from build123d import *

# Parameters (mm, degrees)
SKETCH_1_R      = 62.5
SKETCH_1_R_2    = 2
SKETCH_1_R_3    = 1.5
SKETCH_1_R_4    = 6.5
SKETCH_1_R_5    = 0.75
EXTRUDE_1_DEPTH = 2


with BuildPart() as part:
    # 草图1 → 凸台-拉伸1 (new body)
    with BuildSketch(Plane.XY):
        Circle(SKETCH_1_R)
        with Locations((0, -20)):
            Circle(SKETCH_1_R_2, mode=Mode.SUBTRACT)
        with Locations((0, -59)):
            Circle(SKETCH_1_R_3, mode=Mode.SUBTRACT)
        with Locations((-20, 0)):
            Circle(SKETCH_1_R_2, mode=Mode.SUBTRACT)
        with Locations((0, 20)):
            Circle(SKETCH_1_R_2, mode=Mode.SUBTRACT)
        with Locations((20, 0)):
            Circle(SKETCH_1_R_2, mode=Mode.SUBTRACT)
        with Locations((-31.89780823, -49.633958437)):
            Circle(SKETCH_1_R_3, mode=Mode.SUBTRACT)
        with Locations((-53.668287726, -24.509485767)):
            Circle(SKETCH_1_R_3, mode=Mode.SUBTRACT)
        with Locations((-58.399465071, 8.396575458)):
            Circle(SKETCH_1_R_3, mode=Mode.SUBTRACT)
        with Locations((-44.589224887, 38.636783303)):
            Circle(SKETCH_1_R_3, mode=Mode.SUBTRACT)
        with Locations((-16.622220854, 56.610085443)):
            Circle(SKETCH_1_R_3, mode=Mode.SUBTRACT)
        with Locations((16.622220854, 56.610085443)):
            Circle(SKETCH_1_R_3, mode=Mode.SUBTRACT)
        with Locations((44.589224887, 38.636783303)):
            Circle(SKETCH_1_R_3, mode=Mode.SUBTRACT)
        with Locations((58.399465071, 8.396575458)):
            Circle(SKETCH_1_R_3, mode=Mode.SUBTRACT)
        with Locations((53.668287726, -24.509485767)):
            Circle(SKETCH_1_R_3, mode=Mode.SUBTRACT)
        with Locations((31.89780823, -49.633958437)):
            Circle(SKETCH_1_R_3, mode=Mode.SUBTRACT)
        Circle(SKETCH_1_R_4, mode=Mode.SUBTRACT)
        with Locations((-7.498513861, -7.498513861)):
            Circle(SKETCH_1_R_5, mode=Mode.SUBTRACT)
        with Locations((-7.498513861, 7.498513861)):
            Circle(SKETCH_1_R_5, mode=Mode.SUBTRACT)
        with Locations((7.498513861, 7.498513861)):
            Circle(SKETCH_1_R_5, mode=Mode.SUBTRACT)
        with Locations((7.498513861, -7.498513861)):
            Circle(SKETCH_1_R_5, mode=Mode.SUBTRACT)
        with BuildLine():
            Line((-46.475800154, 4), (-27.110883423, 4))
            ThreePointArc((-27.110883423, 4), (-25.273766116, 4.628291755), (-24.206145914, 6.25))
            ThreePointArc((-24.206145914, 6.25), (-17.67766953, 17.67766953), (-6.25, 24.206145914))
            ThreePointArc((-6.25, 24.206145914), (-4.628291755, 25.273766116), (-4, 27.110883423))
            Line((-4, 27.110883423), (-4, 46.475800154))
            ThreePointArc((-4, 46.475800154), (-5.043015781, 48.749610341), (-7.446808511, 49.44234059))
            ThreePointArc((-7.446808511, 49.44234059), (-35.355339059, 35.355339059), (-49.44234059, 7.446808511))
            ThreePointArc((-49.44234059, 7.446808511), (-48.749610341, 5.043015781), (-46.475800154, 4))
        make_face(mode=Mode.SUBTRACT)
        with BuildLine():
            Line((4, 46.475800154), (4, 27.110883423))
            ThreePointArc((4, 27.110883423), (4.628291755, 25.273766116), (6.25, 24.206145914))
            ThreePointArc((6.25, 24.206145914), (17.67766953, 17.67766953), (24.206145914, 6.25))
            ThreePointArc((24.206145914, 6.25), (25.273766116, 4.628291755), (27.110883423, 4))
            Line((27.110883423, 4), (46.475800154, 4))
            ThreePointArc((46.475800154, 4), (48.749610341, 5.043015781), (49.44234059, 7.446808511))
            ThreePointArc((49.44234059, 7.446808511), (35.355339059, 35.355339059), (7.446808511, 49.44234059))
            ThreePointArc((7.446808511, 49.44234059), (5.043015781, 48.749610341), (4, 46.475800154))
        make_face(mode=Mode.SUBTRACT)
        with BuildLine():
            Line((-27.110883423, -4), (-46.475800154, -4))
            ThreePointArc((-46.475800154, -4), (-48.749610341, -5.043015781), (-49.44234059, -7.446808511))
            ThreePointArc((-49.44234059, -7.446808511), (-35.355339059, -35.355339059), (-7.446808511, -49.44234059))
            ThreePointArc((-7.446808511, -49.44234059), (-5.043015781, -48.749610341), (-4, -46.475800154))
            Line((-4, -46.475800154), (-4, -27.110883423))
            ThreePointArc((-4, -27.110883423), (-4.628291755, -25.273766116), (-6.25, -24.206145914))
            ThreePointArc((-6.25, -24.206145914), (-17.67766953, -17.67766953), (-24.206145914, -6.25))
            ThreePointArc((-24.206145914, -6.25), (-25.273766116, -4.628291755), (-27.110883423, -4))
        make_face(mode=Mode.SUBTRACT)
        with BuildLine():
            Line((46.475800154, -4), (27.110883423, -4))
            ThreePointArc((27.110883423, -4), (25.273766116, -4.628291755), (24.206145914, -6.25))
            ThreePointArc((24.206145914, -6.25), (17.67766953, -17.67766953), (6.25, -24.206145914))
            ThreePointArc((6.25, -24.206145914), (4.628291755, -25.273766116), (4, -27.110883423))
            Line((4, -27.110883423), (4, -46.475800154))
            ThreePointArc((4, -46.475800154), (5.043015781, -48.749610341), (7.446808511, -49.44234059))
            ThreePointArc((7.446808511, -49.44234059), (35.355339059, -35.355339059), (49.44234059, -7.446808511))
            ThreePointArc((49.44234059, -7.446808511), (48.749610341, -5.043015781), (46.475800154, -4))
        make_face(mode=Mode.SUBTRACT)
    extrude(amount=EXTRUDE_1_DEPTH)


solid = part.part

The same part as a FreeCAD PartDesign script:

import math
import FreeCAD as App
import Part
import Sketcher
from FreeCAD import Vector
Q = App.Units.Quantity

doc = App.newDocument("Part")
body = doc.addObject("PartDesign::Body", "Body")

# Sketch on XY plane
sketch1 = body.newObject("Sketcher::SketchObject", "Sketch")
sketch1.AttachmentSupport = (doc.getObject("XY_Plane"), [""])
sketch1.MapMode = "FlatFace"
sketch1.addGeometry([
    Part.Circle(Vector(0, 0, 0), Vector(0, 0, 1), 62.5),  # 0
    Part.Circle(Vector(-31.9, -49.6, 0), Vector(0, 0, 1), 1.5),  # 1
    Part.Circle(Vector(-53.7, -24.5, 0), Vector(0, 0, 1), 1.5),  # 2
    Part.LineSegment(Vector(-46.5, -4, 0), Vector(-27.1, -4, 0)),  # 3
    Part.ArcOfCircle(Part.Circle(Vector(-27.1, -7, 0), Vector(0, 0, 1), 3), math.radians(14), math.radians(90)),  # 4
    Part.ArcOfCircle(Part.Circle(Vector(0, 0, 0), Vector(0, 0, 1), 25), math.radians(-166), math.radians(-104)),  # 5
    Part.ArcOfCircle(Part.Circle(Vector(-7, -27.1, 0), Vector(0, 0, 1), 3), math.radians(0), math.radians(76)),  # 6
    Part.LineSegment(Vector(-4, -27.1, 0), Vector(-4, -46.5, 0)),  # 7
    Part.ArcOfCircle(Part.Circle(Vector(-7, -46.5, 0), Vector(0, 0, 1), 3), math.radians(-99), math.radians(0)),  # 8
    Part.ArcOfCircle(Part.Circle(Vector(0, 0, 0), Vector(0, 0, 1), 50), math.radians(-171), math.radians(-99)),  # 9
    Part.ArcOfCircle(Part.Circle(Vector(-46.5, -7, 0), Vector(0, 0, 1), 3), math.radians(90), math.radians(189)),  # 10
    Part.Circle(Vector(-7.5, -7.5, 0), Vector(0, 0, 1), 0.8),  # 11
    Part.Circle(Vector(0, -59, 0), Vector(0, 0, 1), 1.5),  # 12
    Part.Circle(Vector(31.9, -49.6, 0), Vector(0, 0, 1), 1.5),  # 13
    Part.Circle(Vector(0, -20, 0), Vector(0, 0, 1), 2),  # 14
    Part.LineSegment(Vector(27.1, -4, 0), Vector(46.5, -4, 0)),  # 15
    Part.ArcOfCircle(Part.Circle(Vector(46.5, -7, 0), Vector(0, 0, 1), 3), math.radians(-9), math.radians(90)),  # 16
    Part.ArcOfCircle(Part.Circle(Vector(0, 0, 0), Vector(0, 0, 1), 50), math.radians(-81), math.radians(-9)),  # 17
    Part.ArcOfCircle(Part.Circle(Vector(7, -46.5, 0), Vector(0, 0, 1), 3), math.radians(180), math.radians(279)),  # 18
    Part.LineSegment(Vector(4, -46.5, 0), Vector(4, -27.1, 0)),  # 19
    Part.ArcOfCircle(Part.Circle(Vector(7, -27.1, 0), Vector(0, 0, 1), 3), math.radians(104), math.radians(180)),  # 20
    Part.ArcOfCircle(Part.Circle(Vector(0, 0, 0), Vector(0, 0, 1), 25), math.radians(-76), math.radians(-14)),  # 21
    Part.ArcOfCircle(Part.Circle(Vector(27.1, -7, 0), Vector(0, 0, 1), 3), math.radians(90), math.radians(166)),  # 22
    Part.Circle(Vector(7.5, -7.5, 0), Vector(0, 0, 1), 0.8),  # 23
    Part.Circle(Vector(53.7, -24.5, 0), Vector(0, 0, 1), 1.5),  # 24
    Part.Circle(Vector(-58.4, 8.4, 0), Vector(0, 0, 1), 1.5),  # 25
    Part.Circle(Vector(-20, 0, 0), Vector(0, 0, 1), 2),  # 26
    Part.Circle(Vector(-7.5, 7.5, 0), Vector(0, 0, 1), 0.8),  # 27
    Part.LineSegment(Vector(-27.1, 4, 0), Vector(-46.5, 4, 0)),  # 28
    Part.ArcOfCircle(Part.Circle(Vector(-46.5, 7, 0), Vector(0, 0, 1), 3), math.radians(171), math.radians(270)),  # 29
    Part.ArcOfCircle(Part.Circle(Vector(0, 0, 0), Vector(0, 0, 1), 50), math.radians(99), math.radians(171)),  # 30
    Part.ArcOfCircle(Part.Circle(Vector(-7, 46.5, 0), Vector(0, 0, 1), 3), math.radians(0), math.radians(99)),  # 31
    Part.LineSegment(Vector(-4, 46.5, 0), Vector(-4, 27.1, 0)),  # 32
    Part.ArcOfCircle(Part.Circle(Vector(-7, 27.1, 0), Vector(0, 0, 1), 3), math.radians(-76), math.radians(0)),  # 33
    Part.ArcOfCircle(Part.Circle(Vector(0, 0, 0), Vector(0, 0, 1), 25), math.radians(104), math.radians(166)),  # 34
    Part.ArcOfCircle(Part.Circle(Vector(-27.1, 7, 0), Vector(0, 0, 1), 3), math.radians(-90), math.radians(-14)),  # 35
    Part.Circle(Vector(-44.6, 38.6, 0), Vector(0, 0, 1), 1.5),  # 36
    Part.Circle(Vector(-16.6, 56.6, 0), Vector(0, 0, 1), 1.5),  # 37
    Part.Circle(Vector(0, 0, 0), Vector(0, 0, 1), 6.5),  # 38
    Part.Circle(Vector(7.5, 7.5, 0), Vector(0, 0, 1), 0.8),  # 39
    Part.Circle(Vector(20, 0, 0), Vector(0, 0, 1), 2),  # 40
    Part.Circle(Vector(0, 20, 0), Vector(0, 0, 1), 2),  # 41
    Part.LineSegment(Vector(4, 27.1, 0), Vector(4, 46.5, 0)),  # 42
    Part.ArcOfCircle(Part.Circle(Vector(7, 46.5, 0), Vector(0, 0, 1), 3), math.radians(81), math.radians(180)),  # 43
    Part.ArcOfCircle(Part.Circle(Vector(0, 0, 0), Vector(0, 0, 1), 50), math.radians(9), math.radians(81)),  # 44
    Part.ArcOfCircle(Part.Circle(Vector(46.5, 7, 0), Vector(0, 0, 1), 3), math.radians(-90), math.radians(9)),  # 45
    Part.LineSegment(Vector(46.5, 4, 0), Vector(27.1, 4, 0)),  # 46
    Part.ArcOfCircle(Part.Circle(Vector(27.1, 7, 0), Vector(0, 0, 1), 3), math.radians(-166), math.radians(-90)),  # 47
    Part.ArcOfCircle(Part.Circle(Vector(0, 0, 0), Vector(0, 0, 1), 25), math.radians(14), math.radians(76)),  # 48
    Part.ArcOfCircle(Part.Circle(Vector(7, 27.1, 0), Vector(0, 0, 1), 3), math.radians(180), math.radians(256)),  # 49
    Part.Circle(Vector(58.4, 8.4, 0), Vector(0, 0, 1), 1.5),  # 50
    Part.Circle(Vector(16.6, 56.6, 0), Vector(0, 0, 1), 1.5),  # 51
    Part.Circle(Vector(44.6, 38.6, 0), Vector(0, 0, 1), 1.5),  # 52
], False)
sketch1.addConstraint([
    Sketcher.Constraint("Tangent", 3, 2, 4, 2),
    Sketcher.Constraint("Tangent", 4, 1, 5, 1),
    Sketcher.Constraint("Tangent", 5, 2, 6, 2),
    Sketcher.Constraint("Tangent", 6, 1, 7, 1),
    Sketcher.Constraint("Tangent", 7, 2, 8, 2),
    Sketcher.Constraint("Tangent", 8, 1, 9, 2),
    Sketcher.Constraint("Tangent", 9, 1, 10, 2),
    Sketcher.Constraint("Tangent", 10, 1, 3, 1),
    Sketcher.Constraint("Tangent", 15, 2, 16, 2),
    Sketcher.Constraint("Tangent", 16, 1, 17, 2),
    Sketcher.Constraint("Tangent", 17, 1, 18, 2),
    Sketcher.Constraint("Tangent", 18, 1, 19, 1),
    Sketcher.Constraint("Tangent", 19, 2, 20, 2),
    Sketcher.Constraint("Tangent", 20, 1, 21, 1),
    Sketcher.Constraint("Tangent", 21, 2, 22, 2),
    Sketcher.Constraint("Tangent", 22, 1, 15, 1),
    Sketcher.Constraint("Tangent", 28, 2, 29, 2),
    Sketcher.Constraint("Tangent", 29, 1, 30, 2),
    Sketcher.Constraint("Tangent", 30, 1, 31, 2),
    Sketcher.Constraint("Tangent", 31, 1, 32, 1),
    Sketcher.Constraint("Tangent", 32, 2, 33, 2),
    Sketcher.Constraint("Tangent", 33, 1, 34, 1),
    Sketcher.Constraint("Tangent", 34, 2, 35, 2),
    Sketcher.Constraint("Tangent", 35, 1, 28, 1),
    Sketcher.Constraint("Tangent", 42, 2, 43, 2),
    Sketcher.Constraint("Tangent", 43, 1, 44, 2),
    Sketcher.Constraint("Tangent", 44, 1, 45, 2),
    Sketcher.Constraint("Tangent", 45, 1, 46, 1),
    Sketcher.Constraint("Tangent", 46, 2, 47, 2),
    Sketcher.Constraint("Tangent", 47, 1, 48, 1),
    Sketcher.Constraint("Tangent", 48, 2, 49, 2),
    Sketcher.Constraint("Tangent", 49, 1, 42, 1),
    Sketcher.Constraint("Horizontal", 3),
    Sketcher.Constraint("Vertical", 7),
    Sketcher.Constraint("Horizontal", 15),
    Sketcher.Constraint("Vertical", 19),
    Sketcher.Constraint("Horizontal", 28),
    Sketcher.Constraint("Vertical", 32),
    Sketcher.Constraint("Vertical", 42),
    Sketcher.Constraint("Horizontal", 46),
    Sketcher.Constraint("Coincident", 0, 3, -1, 1),
    Sketcher.Constraint("Coincident", 5, 3, -1, 1),
    Sketcher.Constraint("Coincident", 9, 3, -1, 1),
    Sketcher.Constraint("Coincident", 17, 3, -1, 1),
    Sketcher.Constraint("Coincident", 21, 3, -1, 1),
    Sketcher.Constraint("Coincident", 30, 3, -1, 1),
    Sketcher.Constraint("Coincident", 34, 3, -1, 1),
    Sketcher.Constraint("Coincident", 38, 3, -1, 1),
    Sketcher.Constraint("Coincident", 44, 3, -1, 1),
    Sketcher.Constraint("Coincident", 48, 3, -1, 1),
    Sketcher.Constraint("Equal", 1, 2),
    Sketcher.Constraint("Equal", 4, 6),
    Sketcher.Constraint("Equal", 6, 8),
    Sketcher.Constraint("Equal", 8, 10),
    Sketcher.Constraint("Equal", 2, 12),
    Sketcher.Constraint("Equal", 12, 13),
    Sketcher.Constraint("Equal", 10, 16),
    Sketcher.Constraint("Equal", 9, 17),
    Sketcher.Constraint("Equal", 16, 18),
    Sketcher.Constraint("Equal", 18, 20),
    Sketcher.Constraint("Equal", 5, 21),
    Sketcher.Constraint("Equal", 20, 22),
    Sketcher.Constraint("Equal", 11, 23),
    Sketcher.Constraint("Equal", 13, 24),
    Sketcher.Constraint("Equal", 24, 25),
    Sketcher.Constraint("Equal", 14, 26),
    Sketcher.Constraint("Equal", 23, 27),
    Sketcher.Constraint("Equal", 22, 29),
    Sketcher.Constraint("Equal", 17, 30),
    Sketcher.Constraint("Equal", 29, 31),
    Sketcher.Constraint("Equal", 31, 33),
    Sketcher.Constraint("Equal", 21, 34),
    Sketcher.Constraint("Equal", 33, 35),
    Sketcher.Constraint("Equal", 25, 36),
    Sketcher.Constraint("Equal", 36, 37),
    Sketcher.Constraint("Equal", 27, 39),
    Sketcher.Constraint("Equal", 26, 40),
    Sketcher.Constraint("Equal", 40, 41),
    Sketcher.Constraint("Equal", 35, 43),
    Sketcher.Constraint("Equal", 30, 44),
    Sketcher.Constraint("Equal", 43, 45),
    Sketcher.Constraint("Equal", 45, 47),
    Sketcher.Constraint("Equal", 34, 48),
    Sketcher.Constraint("Equal", 47, 49),
    Sketcher.Constraint("Equal", 37, 50),
    Sketcher.Constraint("Equal", 50, 51),
    Sketcher.Constraint("Equal", 51, 52),
    Sketcher.Constraint("Symmetric", 23, 3, 27, 3, -1, 1),
    Sketcher.Constraint("Symmetric", 11, 3, 39, 3, -1, 1),
    Sketcher.Constraint("Symmetric", 26, 3, 40, 3, -1, 1),
    Sketcher.Constraint("Symmetric", 14, 3, 41, 3, -1, 1),
    Sketcher.Constraint("Symmetric", 1, 3, 13, 3, -2),
    Sketcher.Constraint("Symmetric", 11, 3, 23, 3, -2),
    Sketcher.Constraint("Symmetric", 2, 3, 24, 3, -2),
    Sketcher.Constraint("Symmetric", 25, 3, 50, 3, -2),
    Sketcher.Constraint("Symmetric", 37, 3, 51, 3, -2),
    Sketcher.Constraint("Symmetric", 36, 3, 52, 3, -2),
    Sketcher.Constraint("PointOnObject", 12, 3, -2),
    Sketcher.Constraint("PointOnObject", 14, 3, -2),
    Sketcher.Constraint("PointOnObject", 26, 3, -1),
    Sketcher.Constraint("Horizontal", 10, 3, 16, 3),
    Sketcher.Constraint("Horizontal", 8, 3, 18, 3),
    Sketcher.Constraint("Horizontal", 31, 3, 43, 3),
    Sketcher.Constraint("Horizontal", 35, 3, 45, 3),
    Sketcher.Constraint("Vertical", 10, 3, 29, 3),
    Sketcher.Constraint("Vertical", 8, 3, 31, 3),
    Sketcher.Constraint("Equal", 46, 7),
    Sketcher.Constraint("Diameter", 0, Q("125 mm")),
    Sketcher.Constraint("Diameter", 1, Q("3 mm")),
    Sketcher.Constraint("Diameter", 14, Q("4 mm")),
    Sketcher.Constraint("Diameter", 38, Q("13 mm")),
    Sketcher.Constraint("Radius", 4, Q("3 mm")),
    Sketcher.Constraint("Radius", 5, Q("25 mm")),
    Sketcher.Constraint("Radius", 9, Q("50 mm")),
    Sketcher.Constraint("Diameter", 11, Q("1.5 mm")),
    Sketcher.Constraint("DistanceY", 4, 3, -1, 1, Q("7 mm")),
    Sketcher.Constraint("DistanceY", 12, 3, -1, 1, Q("59 mm")),
    Sketcher.Constraint("DistanceY", 14, 3, -1, 1, Q("20 mm")),
    Sketcher.Constraint("DistanceX", 26, 3, -1, 1, Q("20 mm")),
    Sketcher.Constraint("DistanceX", 1, 3, -1, 1, Q("31.897808 mm")),
    Sketcher.Constraint("DistanceY", 1, 3, -1, 1, Q("49.633958 mm")),
    Sketcher.Constraint("DistanceX", 37, 3, -1, 1, Q("16.622221 mm")),
    Sketcher.Constraint("DistanceX", 2, 3, -1, 1, Q("53.668288 mm")),
    Sketcher.Constraint("DistanceY", 2, 3, -1, 1, Q("24.509486 mm")),
    Sketcher.Constraint("DistanceX", 11, 3, -1, 1, Q("7.498514 mm")),
    Sketcher.Constraint("DistanceY", 11, 3, -1, 1, Q("7.498514 mm")),
    Sketcher.Constraint("DistanceX", 25, 3, -1, 1, Q("58.399465 mm")),
    Sketcher.Constraint("DistanceY", -1, 1, 25, 3, Q("8.396575 mm")),
    Sketcher.Constraint("DistanceX", 36, 3, -1, 1, Q("44.589225 mm")),
    Sketcher.Constraint("DistanceY", -1, 1, 36, 3, Q("38.636783 mm")),
    Sketcher.Constraint("DistanceY", -1, 1, 37, 3, Q("56.610085 mm")),
])
pad1 = body.newObject("PartDesign::Pad", "Pad")
pad1.Profile = sketch1
pad1.Length = 2

doc.recompute()
